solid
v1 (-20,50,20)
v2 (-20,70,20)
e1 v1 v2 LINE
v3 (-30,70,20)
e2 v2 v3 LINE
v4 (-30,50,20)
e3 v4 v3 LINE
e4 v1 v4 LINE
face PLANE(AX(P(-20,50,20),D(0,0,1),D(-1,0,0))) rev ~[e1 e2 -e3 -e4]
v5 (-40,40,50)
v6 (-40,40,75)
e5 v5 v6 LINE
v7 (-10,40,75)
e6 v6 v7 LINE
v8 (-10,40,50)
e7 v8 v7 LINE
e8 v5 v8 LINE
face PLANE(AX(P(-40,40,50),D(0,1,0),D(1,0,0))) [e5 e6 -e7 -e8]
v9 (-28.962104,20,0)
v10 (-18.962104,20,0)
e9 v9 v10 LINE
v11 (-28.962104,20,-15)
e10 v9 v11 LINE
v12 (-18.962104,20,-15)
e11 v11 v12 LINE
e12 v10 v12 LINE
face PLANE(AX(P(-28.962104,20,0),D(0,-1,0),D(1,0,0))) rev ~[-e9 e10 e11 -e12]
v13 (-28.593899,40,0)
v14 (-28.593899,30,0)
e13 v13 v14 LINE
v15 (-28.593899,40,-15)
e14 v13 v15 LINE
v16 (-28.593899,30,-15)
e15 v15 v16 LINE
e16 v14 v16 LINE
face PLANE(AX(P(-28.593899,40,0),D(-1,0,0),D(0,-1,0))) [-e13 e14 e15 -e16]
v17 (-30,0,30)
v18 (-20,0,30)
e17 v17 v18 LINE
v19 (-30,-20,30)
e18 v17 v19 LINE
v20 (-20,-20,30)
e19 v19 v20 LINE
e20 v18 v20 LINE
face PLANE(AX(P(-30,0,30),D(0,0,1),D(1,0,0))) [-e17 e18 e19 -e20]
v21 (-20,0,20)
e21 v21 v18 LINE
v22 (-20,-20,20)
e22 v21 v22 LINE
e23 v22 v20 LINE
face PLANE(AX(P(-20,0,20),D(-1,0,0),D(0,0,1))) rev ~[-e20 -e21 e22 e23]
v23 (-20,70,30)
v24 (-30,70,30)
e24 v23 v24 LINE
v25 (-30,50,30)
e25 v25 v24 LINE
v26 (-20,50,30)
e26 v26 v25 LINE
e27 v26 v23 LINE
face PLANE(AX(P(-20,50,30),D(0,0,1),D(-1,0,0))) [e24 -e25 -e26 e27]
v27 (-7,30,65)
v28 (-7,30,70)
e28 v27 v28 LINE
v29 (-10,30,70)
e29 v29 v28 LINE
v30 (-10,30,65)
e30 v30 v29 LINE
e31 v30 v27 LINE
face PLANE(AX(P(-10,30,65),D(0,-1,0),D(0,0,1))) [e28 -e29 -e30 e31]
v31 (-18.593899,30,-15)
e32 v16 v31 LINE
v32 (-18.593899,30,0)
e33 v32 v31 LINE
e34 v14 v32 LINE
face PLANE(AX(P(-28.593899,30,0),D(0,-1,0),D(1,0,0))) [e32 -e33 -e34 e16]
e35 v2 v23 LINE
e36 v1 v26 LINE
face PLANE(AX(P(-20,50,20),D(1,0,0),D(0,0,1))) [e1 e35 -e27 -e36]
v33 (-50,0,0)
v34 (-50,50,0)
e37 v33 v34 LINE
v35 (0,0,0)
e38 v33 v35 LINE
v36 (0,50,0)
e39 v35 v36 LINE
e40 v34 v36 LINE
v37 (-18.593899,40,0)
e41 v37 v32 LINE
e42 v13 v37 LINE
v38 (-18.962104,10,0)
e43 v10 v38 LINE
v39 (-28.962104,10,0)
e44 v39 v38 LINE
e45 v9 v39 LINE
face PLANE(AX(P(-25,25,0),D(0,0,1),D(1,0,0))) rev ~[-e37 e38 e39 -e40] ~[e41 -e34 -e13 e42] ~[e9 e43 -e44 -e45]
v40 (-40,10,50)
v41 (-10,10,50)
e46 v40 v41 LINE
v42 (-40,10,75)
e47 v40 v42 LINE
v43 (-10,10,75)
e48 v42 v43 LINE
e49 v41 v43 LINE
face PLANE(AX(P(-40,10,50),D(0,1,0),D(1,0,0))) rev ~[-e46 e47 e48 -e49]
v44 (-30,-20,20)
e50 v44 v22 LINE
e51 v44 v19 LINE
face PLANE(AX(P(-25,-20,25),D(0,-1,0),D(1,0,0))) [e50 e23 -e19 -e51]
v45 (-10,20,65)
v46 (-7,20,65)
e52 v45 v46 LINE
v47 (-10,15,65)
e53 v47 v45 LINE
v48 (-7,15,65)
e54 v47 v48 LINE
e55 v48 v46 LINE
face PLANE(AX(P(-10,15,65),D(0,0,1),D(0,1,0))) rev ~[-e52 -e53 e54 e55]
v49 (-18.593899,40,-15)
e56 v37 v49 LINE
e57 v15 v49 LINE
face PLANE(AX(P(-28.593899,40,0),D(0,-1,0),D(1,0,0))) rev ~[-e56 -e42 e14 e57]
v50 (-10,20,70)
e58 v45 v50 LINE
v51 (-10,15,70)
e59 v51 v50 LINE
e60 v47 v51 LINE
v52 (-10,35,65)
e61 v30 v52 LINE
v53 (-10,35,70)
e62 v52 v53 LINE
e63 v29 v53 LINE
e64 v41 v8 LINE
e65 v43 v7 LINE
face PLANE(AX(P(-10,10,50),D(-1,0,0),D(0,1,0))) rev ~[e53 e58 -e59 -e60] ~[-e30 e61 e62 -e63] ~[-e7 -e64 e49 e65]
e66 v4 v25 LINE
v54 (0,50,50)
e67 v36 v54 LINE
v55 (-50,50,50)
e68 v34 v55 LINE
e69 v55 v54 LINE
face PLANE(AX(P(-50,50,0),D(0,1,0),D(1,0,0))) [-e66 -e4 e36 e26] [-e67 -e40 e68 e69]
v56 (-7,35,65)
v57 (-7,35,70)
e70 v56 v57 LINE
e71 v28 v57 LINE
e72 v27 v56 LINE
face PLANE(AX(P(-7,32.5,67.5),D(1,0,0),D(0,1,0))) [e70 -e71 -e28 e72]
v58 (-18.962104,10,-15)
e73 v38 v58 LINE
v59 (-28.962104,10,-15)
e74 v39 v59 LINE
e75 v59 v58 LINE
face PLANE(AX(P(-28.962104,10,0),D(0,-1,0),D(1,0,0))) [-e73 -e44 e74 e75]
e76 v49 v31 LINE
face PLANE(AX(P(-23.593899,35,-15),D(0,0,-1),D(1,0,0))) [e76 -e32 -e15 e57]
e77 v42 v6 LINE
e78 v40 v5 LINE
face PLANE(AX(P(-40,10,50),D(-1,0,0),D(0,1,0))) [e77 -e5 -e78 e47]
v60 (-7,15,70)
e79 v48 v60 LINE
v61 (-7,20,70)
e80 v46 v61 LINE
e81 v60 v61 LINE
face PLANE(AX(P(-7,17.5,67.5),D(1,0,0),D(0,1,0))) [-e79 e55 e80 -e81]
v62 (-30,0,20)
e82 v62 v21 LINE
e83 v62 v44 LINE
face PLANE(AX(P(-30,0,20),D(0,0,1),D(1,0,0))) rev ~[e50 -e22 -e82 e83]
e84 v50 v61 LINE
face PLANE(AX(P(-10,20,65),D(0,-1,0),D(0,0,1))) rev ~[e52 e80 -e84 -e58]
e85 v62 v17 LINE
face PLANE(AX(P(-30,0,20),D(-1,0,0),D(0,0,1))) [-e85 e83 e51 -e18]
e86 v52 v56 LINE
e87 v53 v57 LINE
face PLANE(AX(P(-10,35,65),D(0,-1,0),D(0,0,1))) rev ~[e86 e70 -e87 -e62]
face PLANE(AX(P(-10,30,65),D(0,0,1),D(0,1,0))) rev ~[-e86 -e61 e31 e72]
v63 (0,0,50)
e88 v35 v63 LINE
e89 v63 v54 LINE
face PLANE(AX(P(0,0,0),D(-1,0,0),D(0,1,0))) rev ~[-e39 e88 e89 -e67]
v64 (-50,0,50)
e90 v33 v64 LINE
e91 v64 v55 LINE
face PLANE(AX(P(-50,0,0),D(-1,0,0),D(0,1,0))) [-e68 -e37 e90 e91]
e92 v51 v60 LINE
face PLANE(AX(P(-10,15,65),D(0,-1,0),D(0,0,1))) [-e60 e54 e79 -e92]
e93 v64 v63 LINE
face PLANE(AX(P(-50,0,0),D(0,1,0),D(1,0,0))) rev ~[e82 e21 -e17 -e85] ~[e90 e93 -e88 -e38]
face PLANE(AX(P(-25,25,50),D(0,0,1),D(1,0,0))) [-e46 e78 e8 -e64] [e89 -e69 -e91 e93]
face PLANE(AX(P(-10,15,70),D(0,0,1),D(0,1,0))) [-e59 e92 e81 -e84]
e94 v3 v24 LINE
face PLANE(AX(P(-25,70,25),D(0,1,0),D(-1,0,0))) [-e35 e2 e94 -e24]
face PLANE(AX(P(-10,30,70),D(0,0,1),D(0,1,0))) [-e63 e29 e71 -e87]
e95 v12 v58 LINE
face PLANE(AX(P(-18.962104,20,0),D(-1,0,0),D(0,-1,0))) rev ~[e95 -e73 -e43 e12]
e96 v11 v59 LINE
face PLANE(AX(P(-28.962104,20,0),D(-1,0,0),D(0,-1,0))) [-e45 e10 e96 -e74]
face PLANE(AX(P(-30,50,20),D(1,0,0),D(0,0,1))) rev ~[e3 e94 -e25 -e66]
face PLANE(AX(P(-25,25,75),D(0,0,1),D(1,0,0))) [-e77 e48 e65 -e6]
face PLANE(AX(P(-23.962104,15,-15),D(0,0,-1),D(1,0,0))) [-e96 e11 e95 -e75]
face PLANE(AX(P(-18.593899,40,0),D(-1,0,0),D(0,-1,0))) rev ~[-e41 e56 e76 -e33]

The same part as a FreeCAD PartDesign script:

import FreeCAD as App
import Part
import Sketcher
from FreeCAD import Vector


def add_polygon(sketch, points):
    """Adds a closed chain of lines whose ends are joined by coincident constraints."""
    first, n = sketch.GeometryCount, len(points)
    for a, b in zip(points, points[1:] + points[:1]):
        sketch.addGeometry(Part.LineSegment(App.Vector(*a, 0), App.Vector(*b, 0)), False)
    for i in range(n):
        sketch.addConstraint(Sketcher.Constraint("Coincident", first + i, 2, first + (i + 1) % n, 1))

doc = App.newDocument("Part")
body = doc.addObject("PartDesign::Body", "Body")

sketch1 = body.newObject("Sketcher::SketchObject", "Sketch")
sketch1.AttachmentSupport = (doc.getObject("XY_Plane"), [""])
sketch1.MapMode = "FlatFace"
add_polygon(sketch1, [(-50, 50), (-50, 0), (0, 0), (0, 50)])
sketch1.addConstraint([
    Sketcher.Constraint("Vertical", 0),
    Sketcher.Constraint("Horizontal", 1),
    Sketcher.Constraint("Vertical", 2),
    Sketcher.Constraint("Horizontal", 3),
    Sketcher.Constraint("Coincident", 1, 2, -1, 1),
    Sketcher.Constraint("Equal", 3, 0),
    Sketcher.Constraint("DistanceX", 1, 1, 1, 2, 50.0),
])
pad1 = body.newObject("PartDesign::Pad", "Pad")
pad1.Profile = sketch1
pad1.Length = 50

sketch2 = body.newObject("Sketcher::SketchObject", "Sketch001")
sketch2.AttachmentSupport = (doc.getObject("XY_Plane"), [""])
sketch2.MapMode = "FlatFace"
sketch2.AttachmentOffset = App.Placement(Vector(0, 0, 50), App.Rotation())
add_polygon(sketch2, [(-40, 40), (-40, 10), (-10, 10), (-10, 40)])
sketch2.addConstraint([
    Sketcher.Constraint("Vertical", 0),
    Sketcher.Constraint("Horizontal", 1),
    Sketcher.Constraint("Vertical", 2),
    Sketcher.Constraint("Horizontal", 3),
    Sketcher.Constraint("Equal", 3, 0),
    Sketcher.Constraint("DistanceX", 1, 1, 1, 2, 30.0),
    Sketcher.Constraint("DistanceX", 0, 2, -1, 1, 40.0),
    Sketcher.Constraint("DistanceY", -1, 1, 0, 2, 10.0),
])
pad2 = body.newObject("PartDesign::Pad", "Pad001")
pad2.Profile = sketch2
pad2.Length = 25

sketch3 = body.newObject("Sketcher::SketchObject", "Sketch002")
sketch3.AttachmentSupport = (doc.getObject("XZ_Plane"), [""])
sketch3.MapMode = "FlatFace"
add_polygon(sketch3, [(-30, 30), (-30, 20), (-20, 20), (-20, 30)])
sketch3.addConstraint([
    Sketcher.Constraint("Vertical", 0),
    Sketcher.Constraint("Horizontal", 1),
    Sketcher.Constraint("Vertical", 2),
    Sketcher.Constraint("Horizontal", 3),
    Sketcher.Constraint("Equal", 3, 0),
    Sketcher.Constraint("DistanceX", 1, 1, 1, 2, 10.0),
    Sketcher.Constraint("DistanceX", 0, 2, -1, 1, 30.0),
    Sketcher.Constraint("DistanceY", -1, 1, 0, 2, 20.0),
])
pad3 = body.newObject("PartDesign::Pad", "Pad002")
pad3.Profile = sketch3
pad3.Length = 20

sketch4 = body.newObject("Sketcher::SketchObject", "Sketch003")
sketch4.AttachmentSupport = (doc.getObject("XZ_Plane"), [""])
sketch4.MapMode = "FlatFace"
sketch4.AttachmentOffset = App.Placement(Vector(0, 0, -50), App.Rotation())
add_polygon(sketch4, [(-20, 30), (-20, 20), (-30, 20), (-30, 30)])
sketch4.addConstraint([
    Sketcher.Constraint("Vertical", 0),
    Sketcher.Constraint("Horizontal", 1),
    Sketcher.Constraint("Vertical", 2),
    Sketcher.Constraint("Horizontal", 3),
    Sketcher.Constraint("Equal", 3, 0),
    Sketcher.Constraint("DistanceX", 1, 2, 1, 1, 10.0),
    Sketcher.Constraint("DistanceX", 0, 2, -1, 1, 20.0),
    Sketcher.Constraint("DistanceY", -1, 1, 0, 2, 20.0),
])
pad4 = body.newObject("PartDesign::Pad", "Pad003")
pad4.Profile = sketch4
pad4.Length = 20
pad4.Reversed = True

sketch5 = body.newObject("Sketcher::SketchObject", "Sketch004")
sketch5.AttachmentSupport = (doc.getObject("XY_Plane"), [""])
sketch5.MapMode = "FlatFace"
add_polygon(sketch5, [(-29, 30), (-29, 40), (-19, 40), (-19, 30)])
add_polygon(sketch5, [(-29, 10), (-29, 20), (-19, 20), (-19, 10)])
sketch5.addConstraint([
    Sketcher.Constraint("Vertical", 0),
    Sketcher.Constraint("Horizontal", 1),
    Sketcher.Constraint("Vertical", 2),
    Sketcher.Constraint("Horizontal", 3),
    Sketcher.Constraint("Vertical", 4),
    Sketcher.Constraint("Horizontal", 5),
    Sketcher.Constraint("Vertical", 6),
    Sketcher.Constraint("Horizontal", 7),
    Sketcher.Constraint("Equal", 3, 5),
    Sketcher.Constraint("Equal", 7, 0),
    Sketcher.Constraint("Equal", 2, 4),
    Sketcher.Constraint("DistanceX", 1, 1, 1, 2, 10.0),
    Sketcher.Constraint("DistanceY", -1, 1, 0, 2, 40.0),
    Sketcher.Constraint("DistanceY", -1, 1, 4, 2, 20.0),
    Sketcher.Constraint("DistanceX", 0, 2, -1, 1, 28.593899),
    Sketcher.Constraint("DistanceX", 4, 2, -1, 1, 28.962104),
])
pad5 = body.newObject("PartDesign::Pad", "Pad004")
pad5.Profile = sketch5
pad5.Length = 15
pad5.Reversed = True

sketch6 = body.newObject("Sketcher::SketchObject", "Sketch005")
sketch6.AttachmentSupport = (doc.getObject("YZ_Plane"), [""])
sketch6.MapMode = "FlatFace"
sketch6.AttachmentOffset = App.Placement(Vector(0, 0, -10), App.Rotation())
add_polygon(sketch6, [(15, 70), (15, 65), (20, 65), (20, 70)])
add_polygon(sketch6, [(30, 70), (30, 65), (35, 65), (35, 70)])
sketch6.addConstraint([
    Sketcher.Constraint("Vertical", 0),
    Sketcher.Constraint("Horizontal", 1),
    Sketcher.Constraint("Vertical", 2),
    Sketcher.Constraint("Horizontal", 3),
    Sketcher.Constraint("Vertical", 4),
    Sketcher.Constraint("Horizontal", 5),
    Sketcher.Constraint("Vertical", 6),
    Sketcher.Constraint("Horizontal", 7),
    Sketcher.Constraint("Horizontal", 1, 2, 4, 2),
    Sketcher.Constraint("Horizontal", 3, 2, 6, 2),
    Sketcher.Constraint("Equal", 3, 5),
    Sketcher.Constraint("Equal", 7, 0),
    Sketcher.Constraint("DistanceX", 1, 1, 1, 2, 5.0),
    Sketcher.Constraint("DistanceX", -1, 1, 0, 2, 15.0),
    Sketcher.Constraint("DistanceY", -1, 1, 0, 2, 65.0),
    Sketcher.Constraint("DistanceX", -1, 1, 4, 2, 30.0),
])
pad6 = body.newObject("PartDesign::Pad", "Pad005")
pad6.Profile = sketch6
pad6.Length = 3

doc.recompute()
